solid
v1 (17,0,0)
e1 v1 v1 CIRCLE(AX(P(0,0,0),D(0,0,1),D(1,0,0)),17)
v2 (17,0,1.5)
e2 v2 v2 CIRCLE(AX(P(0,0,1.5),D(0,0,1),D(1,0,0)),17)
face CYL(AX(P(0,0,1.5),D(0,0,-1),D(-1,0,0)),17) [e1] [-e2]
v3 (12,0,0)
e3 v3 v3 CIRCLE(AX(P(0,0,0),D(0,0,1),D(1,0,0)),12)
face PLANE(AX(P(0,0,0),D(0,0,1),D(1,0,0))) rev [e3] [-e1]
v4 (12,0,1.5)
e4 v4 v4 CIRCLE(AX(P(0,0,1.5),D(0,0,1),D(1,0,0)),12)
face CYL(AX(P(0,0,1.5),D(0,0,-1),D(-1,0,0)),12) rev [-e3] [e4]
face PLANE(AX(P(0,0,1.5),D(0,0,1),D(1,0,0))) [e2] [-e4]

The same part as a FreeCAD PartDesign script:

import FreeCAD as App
import Part
import Sketcher
from FreeCAD import Vector
Q = App.Units.Quantity

doc = App.newDocument("Part")
body = doc.addObject("PartDesign::Body", "Body")

# Sketch on XY plane
sketch1 = doc.addObject("Sketcher::SketchObject", "Sketch")
body.addObject(sketch1)
sketch1.AttachmentSupport = (doc.XY_Plane, [""])
sketch1.MapMode = "FlatFace"
sketch1.addGeometry([
    Part.Circle(Vector(0, 0, 0), Vector(0, 0, 1), 17),
    Part.Circle(Vector(0, 0, 0), Vector(0, 0, 1), 12),
], False)
sketch1.addConstraint([
    Sketcher.Constraint("Coincident", 0, 3, -1, 1),
    Sketcher.Constraint("Coincident", 1, 3, -1, 1),
    Sketcher.Constraint("Diameter", 0, Q("34 mm")),
    Sketcher.Constraint("Diameter", 1, Q("24 mm")),
])
pad1 = doc.addObject("PartDesign::Pad", "Pad")
body.addObject(pad1)
pad1.Profile = sketch1
pad1.Length = 1.5

doc.recompute()
